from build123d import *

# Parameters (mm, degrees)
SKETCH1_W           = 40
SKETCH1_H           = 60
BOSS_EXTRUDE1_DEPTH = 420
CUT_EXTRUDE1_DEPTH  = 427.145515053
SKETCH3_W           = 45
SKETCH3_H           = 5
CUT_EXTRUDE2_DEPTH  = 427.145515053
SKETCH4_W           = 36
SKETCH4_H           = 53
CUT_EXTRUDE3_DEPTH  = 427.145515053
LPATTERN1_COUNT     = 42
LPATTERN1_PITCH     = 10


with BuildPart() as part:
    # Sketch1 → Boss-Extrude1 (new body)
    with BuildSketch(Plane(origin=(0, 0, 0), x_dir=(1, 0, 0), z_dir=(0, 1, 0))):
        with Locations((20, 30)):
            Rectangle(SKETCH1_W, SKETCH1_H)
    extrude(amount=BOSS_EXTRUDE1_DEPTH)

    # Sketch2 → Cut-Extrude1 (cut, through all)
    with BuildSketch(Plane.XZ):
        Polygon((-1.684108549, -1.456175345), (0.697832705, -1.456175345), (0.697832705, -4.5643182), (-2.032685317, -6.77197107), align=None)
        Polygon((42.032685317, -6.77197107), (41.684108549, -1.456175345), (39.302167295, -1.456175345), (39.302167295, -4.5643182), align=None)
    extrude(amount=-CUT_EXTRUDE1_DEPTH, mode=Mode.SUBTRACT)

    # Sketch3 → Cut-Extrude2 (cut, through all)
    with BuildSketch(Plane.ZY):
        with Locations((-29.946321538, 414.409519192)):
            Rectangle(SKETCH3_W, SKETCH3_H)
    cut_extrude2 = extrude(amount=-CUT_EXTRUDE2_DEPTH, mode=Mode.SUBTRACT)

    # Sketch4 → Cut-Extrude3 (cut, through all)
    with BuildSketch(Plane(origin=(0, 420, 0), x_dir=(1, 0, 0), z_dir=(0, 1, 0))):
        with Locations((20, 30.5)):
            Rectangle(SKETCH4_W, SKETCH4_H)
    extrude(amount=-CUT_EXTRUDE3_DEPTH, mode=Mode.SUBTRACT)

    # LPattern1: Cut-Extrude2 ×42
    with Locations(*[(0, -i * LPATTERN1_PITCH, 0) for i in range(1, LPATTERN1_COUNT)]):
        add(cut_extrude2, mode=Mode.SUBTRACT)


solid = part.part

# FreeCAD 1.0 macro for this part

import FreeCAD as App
import Part
import Sketcher

V = App.Vector
Q = App.Units.Quantity

doc = App.newDocument("Part")
body = doc.addObject("PartDesign::Body", "Body")

# Sketch on XZ plane
sketch1 = body.newObject("Sketcher::SketchObject", "Sketch")
sketch1.AttachmentSupport = (doc.getObject("XZ_Plane"), [""])
sketch1.MapMode = "FlatFace"
sketch1.addGeometry(Part.LineSegment(V(0, -60, 0), V(0, 0, 0)), False)
sketch1.addGeometry(Part.LineSegment(V(0, 0, 0), V(40, 0, 0)), False)
sketch1.addGeometry(Part.LineSegment(V(40, 0, 0), V(40, -60, 0)), False)
sketch1.addGeometry(Part.LineSegment(V(40, -60, 0), V(0, -60, 0)), False)
sketch1.addConstraint(Sketcher.Constraint("Coincident", 0, 2, 1, 1))
sketch1.addConstraint(Sketcher.Constraint("Coincident", 1, 2, 2, 1))
sketch1.addConstraint(Sketcher.Constraint("Coincident", 2, 2, 3, 1))
sketch1.addConstraint(Sketcher.Constraint("Coincident", 3, 2, 0, 1))
sketch1.addConstraint(Sketcher.Constraint("Vertical", 0))
sketch1.addConstraint(Sketcher.Constraint("Horizontal", 1))
sketch1.addConstraint(Sketcher.Constraint("Vertical", 2))
sketch1.addConstraint(Sketcher.Constraint("Horizontal", 3))
sketch1.addConstraint(Sketcher.Constraint("Coincident", 0, 2, -1, 1))
sketch1.addConstraint(Sketcher.Constraint("DistanceX", 1, 1, 1, 2, Q("40 mm")))
sketch1.addConstraint(Sketcher.Constraint("DistanceY", 0, 1, 0, 2, Q("60 mm")))
pad1 = body.newObject("PartDesign::Pad", "Pad")
pad1.Profile = sketch1
pad1.Length = 420
pad1.Reversed = True

# Sketch on XZ plane
sketch2 = body.newObject("Sketcher::SketchObject", "Sketch001")
sketch2.AttachmentSupport = (doc.getObject("XZ_Plane"), [""])
sketch2.MapMode = "FlatFace"
sketch2.addGeometry(Part.LineSegment(V(0.7, -1.5, 0), V(-1.7, -1.5, 0)), False)
sketch2.addGeometry(Part.LineSegment(V(-1.7, -1.5, 0), V(-2, -6.8, 0)), False)
sketch2.addGeometry(Part.LineSegment(V(-2, -6.8, 0), V(0.7, -4.6, 0)), False)
sketch2.addGeometry(Part.LineSegment(V(0.7, -4.6, 0), V(0.7, -1.5, 0)), False)
sketch2.addGeometry(Part.LineSegment(V(42, -6.8, 0), V(41.7, -1.5, 0)), False)
sketch2.addGeometry(Part.LineSegment(V(41.7, -1.5, 0), V(39.3, -1.5, 0)), False)
sketch2.addGeometry(Part.LineSegment(V(39.3, -1.5, 0), V(39.3, -4.6, 0)), False)
sketch2.addGeometry(Part.LineSegment(V(39.3, -4.6, 0), V(42, -6.8, 0)), False)
sketch2.addConstraint(Sketcher.Constraint("Coincident", 0, 2, 1, 1))
sketch2.addConstraint(Sketcher.Constraint("Coincident", 1, 2, 2, 1))
sketch2.addConstraint(Sketcher.Constraint("Coincident", 2, 2, 3, 1))
sketch2.addConstraint(Sketcher.Constraint("Coincident", 3, 2, 0, 1))
sketch2.addConstraint(Sketcher.Constraint("Coincident", 4, 2, 5, 1))
sketch2.addConstraint(Sketcher.Constraint("Coincident", 5, 2, 6, 1))
sketch2.addConstraint(Sketcher.Constraint("Coincident", 6, 2, 7, 1))
sketch2.addConstraint(Sketcher.Constraint("Coincident", 7, 2, 4, 1))
sketch2.addConstraint(Sketcher.Constraint("Horizontal", 0))
sketch2.addConstraint(Sketcher.Constraint("Vertical", 3))
sketch2.addConstraint(Sketcher.Constraint("Horizontal", 5))
sketch2.addConstraint(Sketcher.Constraint("Vertical", 6))
sketch2.addConstraint(Sketcher.Constraint("Horizontal", 3, 2, 4, 2))
sketch2.addConstraint(Sketcher.Constraint("Horizontal", 2, 2, 6, 2))
sketch2.addConstraint(Sketcher.Constraint("Horizontal", 1, 2, 7, 2))
sketch2.addConstraint(Sketcher.Constraint("Equal", 0, 5))
sketch2.addConstraint(Sketcher.Constraint("Equal", 1, 4))
sketch2.addConstraint(Sketcher.Constraint("DistanceX", 0, 2, 0, 1, Q("2.381941 mm")))
sketch2.addConstraint(Sketcher.Constraint("DistanceY", 3, 1, 3, 2, Q("3.108143 mm")))
sketch2.addConstraint(Sketcher.Constraint("DistanceX", 0, 2, -1, 1, Q("1.684109 mm")))
sketch2.addConstraint(Sketcher.Constraint("DistanceY", 1, 2, -1, 1, Q("6.771971 mm")))
sketch2.addConstraint(Sketcher.Constraint("DistanceY", 2, 2, -1, 1, Q("4.564318 mm")))
sketch2.addConstraint(Sketcher.Constraint("DistanceX", -1, 1, 4, 2, Q("41.684109 mm")))
sketch2.addConstraint(Sketcher.Constraint("DistanceX", 1, 2, 2, 2, Q("2.730518 mm")))
pocket1 = body.newObject("PartDesign::Pocket", "Pocket")
pocket1.Profile = sketch2
pocket1.Type = "ThroughAll"

# Sketch on YZ plane
sketch3 = body.newObject("Sketcher::SketchObject", "Sketch002")
sketch3.AttachmentSupport = (doc.getObject("YZ_Plane"), [""])
sketch3.MapMode = "FlatFace"
sketch3.addGeometry(Part.LineSegment(V(417, -52, 0), V(412, -52, 0)), False)
sketch3.addGeometry(Part.LineSegment(V(412, -52, 0), V(412, -7, 0)), False)
sketch3.addGeometry(Part.LineSegment(V(412, -7, 0), V(417, -7, 0)), False)
sketch3.addGeometry(Part.LineSegment(V(417, -7, 0), V(417, -52, 0)), False)
sketch3.addConstraint(Sketcher.Constraint("Coincident", 0, 2, 1, 1))
sketch3.addConstraint(Sketcher.Constraint("Coincident", 1, 2, 2, 1))
sketch3.addConstraint(Sketcher.Constraint("Coincident", 2, 2, 3, 1))
sketch3.addConstraint(Sketcher.Constraint("Coincident", 3, 2, 0, 1))
sketch3.addConstraint(Sketcher.Constraint("Horizontal", 0))
sketch3.addConstraint(Sketcher.Constraint("Vertical", 1))
sketch3.addConstraint(Sketcher.Constraint("Horizontal", 2))
sketch3.addConstraint(Sketcher.Constraint("Vertical", 3))
sketch3.addConstraint(Sketcher.Constraint("DistanceX", 0, 2, 0, 1, Q("5 mm")))
sketch3.addConstraint(Sketcher.Constraint("DistanceY", 1, 1, 1, 2, Q("45 mm")))
sketch3.addConstraint(Sketcher.Constraint("DistanceX", -1, 1, 0, 2, Q("411.909519 mm")))
sketch3.addConstraint(Sketcher.Constraint("DistanceY", 0, 2, -1, 1, Q("52.446322 mm")))
pocket2 = body.newObject("PartDesign::Pocket", "Pocket001")
pocket2.Profile = sketch3
pocket2.Type = "ThroughAll"
pocket2.Reversed = True

# Sketch on XZ plane
sketch4 = body.newObject("Sketcher::SketchObject", "Sketch003")
sketch4.AttachmentSupport = (doc.getObject("XZ_Plane"), [""])
sketch4.MapMode = "FlatFace"
sketch4.AttachmentOffset = App.Placement(V(0, 0, -420), App.Rotation())
sketch4.addGeometry(Part.LineSegment(V(2, -57, 0), V(2, -4, 0)), False)
sketch4.addGeometry(Part.LineSegment(V(2, -4, 0), V(38, -4, 0)), False)
sketch4.addGeometry(Part.LineSegment(V(38, -4, 0), V(38, -57, 0)), False)
sketch4.addGeometry(Part.LineSegment(V(38, -57, 0), V(2, -57, 0)), False)
sketch4.addConstraint(Sketcher.Constraint("Coincident", 0, 2, 1, 1))
sketch4.addConstraint(Sketcher.Constraint("Coincident", 1, 2, 2, 1))
sketch4.addConstraint(Sketcher.Constraint("Coincident", 2, 2, 3, 1))
sketch4.addConstraint(Sketcher.Constraint("Coincident", 3, 2, 0, 1))
sketch4.addConstraint(Sketcher.Constraint("Vertical", 0))
sketch4.addConstraint(Sketcher.Constraint("Horizontal", 1))
sketch4.addConstraint(Sketcher.Constraint("Vertical", 2))
sketch4.addConstraint(Sketcher.Constraint("Horizontal", 3))
sketch4.addConstraint(Sketcher.Constraint("DistanceX", 1, 1, 1, 2, Q("36 mm")))
sketch4.addConstraint(Sketcher.Constraint("DistanceY", 0, 1, 0, 2, Q("53 mm")))
sketch4.addConstraint(Sketcher.Constraint("DistanceX", -1, 1, 0, 2, Q("2 mm")))
sketch4.addConstraint(Sketcher.Constraint("DistanceY", 0, 2, -1, 1, Q("4 mm")))
pocket3 = body.newObject("PartDesign::Pocket", "Pocket002")
pocket3.Profile = sketch4
pocket3.Type = "ThroughAll"
pocket3.Reversed = True
doc.recompute()

linearpattern = body.newObject("PartDesign::LinearPattern", "LinearPattern")
linearpattern.Originals = [pocket2]
linearpattern.Direction = (doc.getObject("Y_Axis"), [""])
linearpattern.Mode = "offset"
linearpattern.Offset = 10
linearpattern.Occurrences = 42
linearpattern.Reversed = True
body.Tip = linearpattern

doc.recompute()
